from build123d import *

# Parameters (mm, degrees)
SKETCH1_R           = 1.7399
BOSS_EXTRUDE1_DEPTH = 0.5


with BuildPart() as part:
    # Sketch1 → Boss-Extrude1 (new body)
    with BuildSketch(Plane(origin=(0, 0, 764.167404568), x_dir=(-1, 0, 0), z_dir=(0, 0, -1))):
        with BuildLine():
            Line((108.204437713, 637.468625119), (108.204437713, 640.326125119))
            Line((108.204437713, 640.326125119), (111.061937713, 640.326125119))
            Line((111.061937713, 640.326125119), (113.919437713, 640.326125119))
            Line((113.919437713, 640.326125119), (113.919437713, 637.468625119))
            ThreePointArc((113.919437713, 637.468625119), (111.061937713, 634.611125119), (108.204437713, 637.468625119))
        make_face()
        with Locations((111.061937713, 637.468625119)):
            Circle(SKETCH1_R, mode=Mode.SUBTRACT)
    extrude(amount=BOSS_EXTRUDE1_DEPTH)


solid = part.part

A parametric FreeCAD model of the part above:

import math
import FreeCAD as App
import Part
import Sketcher
Q = App.Units.Quantity

doc = App.newDocument("Part")
body = doc.addObject("PartDesign::Body", "Body")

sketch1 = body.newObject("Sketcher::SketchObject", "Sketch")
sketch1.AttachmentSupport = (doc.getObject("XY_Plane"), [""])
sketch1.MapMode = "FlatFace"
sketch1.AttachmentOffset = App.Placement(App.Vector(0, 0, 764.167405), App.Rotation())
sketch1.addGeometry([
    Part.LineSegment(App.Vector(-108.2, 640.3, 0), App.Vector(-108.2, 637.5, 0)),
    Part.ArcOfCircle(Part.Circle(App.Vector(-111.1, 637.5, 0), App.Vector(0, 0, 1), 2.9), math.radians(180), math.radians(360)),
    Part.LineSegment(App.Vector(-113.9, 637.5, 0), App.Vector(-113.9, 640.3, 0)),
    Part.LineSegment(App.Vector(-113.9, 640.3, 0), App.Vector(-108.2, 640.3, 0)),
    Part.Circle(App.Vector(-111.1, 637.5, 0), App.Vector(0, 0, 1), 1.7),
], False)
sketch1.addConstraint([
    Sketcher.Constraint("Tangent", 0, 2, 1, 2),
    Sketcher.Constraint("Tangent", 1, 1, 2, 1),
    Sketcher.Constraint("Coincident", 2, 2, 3, 1),
    Sketcher.Constraint("Coincident", 3, 2, 0, 1),
    Sketcher.Constraint("Vertical", 0),
    Sketcher.Constraint("Vertical", 2),
    Sketcher.Constraint("Horizontal", 3),
    Sketcher.Constraint("Coincident", 4, 3, 1, 3),
    Sketcher.Constraint("Diameter", 4, Q("0.137 in")),
    Sketcher.Constraint("Radius", 1, Q("0.1125 in")),
    Sketcher.Constraint("DistanceY", 0, 2, 0, 1, Q("0.1125 in")),
    Sketcher.Constraint("DistanceX", 1, 3, -1, 1, 111.061938),
    Sketcher.Constraint("DistanceY", -1, 1, 1, 3, 637.468625),
])
pad1 = body.newObject("PartDesign::Pad", "Pad")
pad1.Profile = sketch1
pad1.Length = 0.5
pad1.Reversed = True

doc.recompute()
